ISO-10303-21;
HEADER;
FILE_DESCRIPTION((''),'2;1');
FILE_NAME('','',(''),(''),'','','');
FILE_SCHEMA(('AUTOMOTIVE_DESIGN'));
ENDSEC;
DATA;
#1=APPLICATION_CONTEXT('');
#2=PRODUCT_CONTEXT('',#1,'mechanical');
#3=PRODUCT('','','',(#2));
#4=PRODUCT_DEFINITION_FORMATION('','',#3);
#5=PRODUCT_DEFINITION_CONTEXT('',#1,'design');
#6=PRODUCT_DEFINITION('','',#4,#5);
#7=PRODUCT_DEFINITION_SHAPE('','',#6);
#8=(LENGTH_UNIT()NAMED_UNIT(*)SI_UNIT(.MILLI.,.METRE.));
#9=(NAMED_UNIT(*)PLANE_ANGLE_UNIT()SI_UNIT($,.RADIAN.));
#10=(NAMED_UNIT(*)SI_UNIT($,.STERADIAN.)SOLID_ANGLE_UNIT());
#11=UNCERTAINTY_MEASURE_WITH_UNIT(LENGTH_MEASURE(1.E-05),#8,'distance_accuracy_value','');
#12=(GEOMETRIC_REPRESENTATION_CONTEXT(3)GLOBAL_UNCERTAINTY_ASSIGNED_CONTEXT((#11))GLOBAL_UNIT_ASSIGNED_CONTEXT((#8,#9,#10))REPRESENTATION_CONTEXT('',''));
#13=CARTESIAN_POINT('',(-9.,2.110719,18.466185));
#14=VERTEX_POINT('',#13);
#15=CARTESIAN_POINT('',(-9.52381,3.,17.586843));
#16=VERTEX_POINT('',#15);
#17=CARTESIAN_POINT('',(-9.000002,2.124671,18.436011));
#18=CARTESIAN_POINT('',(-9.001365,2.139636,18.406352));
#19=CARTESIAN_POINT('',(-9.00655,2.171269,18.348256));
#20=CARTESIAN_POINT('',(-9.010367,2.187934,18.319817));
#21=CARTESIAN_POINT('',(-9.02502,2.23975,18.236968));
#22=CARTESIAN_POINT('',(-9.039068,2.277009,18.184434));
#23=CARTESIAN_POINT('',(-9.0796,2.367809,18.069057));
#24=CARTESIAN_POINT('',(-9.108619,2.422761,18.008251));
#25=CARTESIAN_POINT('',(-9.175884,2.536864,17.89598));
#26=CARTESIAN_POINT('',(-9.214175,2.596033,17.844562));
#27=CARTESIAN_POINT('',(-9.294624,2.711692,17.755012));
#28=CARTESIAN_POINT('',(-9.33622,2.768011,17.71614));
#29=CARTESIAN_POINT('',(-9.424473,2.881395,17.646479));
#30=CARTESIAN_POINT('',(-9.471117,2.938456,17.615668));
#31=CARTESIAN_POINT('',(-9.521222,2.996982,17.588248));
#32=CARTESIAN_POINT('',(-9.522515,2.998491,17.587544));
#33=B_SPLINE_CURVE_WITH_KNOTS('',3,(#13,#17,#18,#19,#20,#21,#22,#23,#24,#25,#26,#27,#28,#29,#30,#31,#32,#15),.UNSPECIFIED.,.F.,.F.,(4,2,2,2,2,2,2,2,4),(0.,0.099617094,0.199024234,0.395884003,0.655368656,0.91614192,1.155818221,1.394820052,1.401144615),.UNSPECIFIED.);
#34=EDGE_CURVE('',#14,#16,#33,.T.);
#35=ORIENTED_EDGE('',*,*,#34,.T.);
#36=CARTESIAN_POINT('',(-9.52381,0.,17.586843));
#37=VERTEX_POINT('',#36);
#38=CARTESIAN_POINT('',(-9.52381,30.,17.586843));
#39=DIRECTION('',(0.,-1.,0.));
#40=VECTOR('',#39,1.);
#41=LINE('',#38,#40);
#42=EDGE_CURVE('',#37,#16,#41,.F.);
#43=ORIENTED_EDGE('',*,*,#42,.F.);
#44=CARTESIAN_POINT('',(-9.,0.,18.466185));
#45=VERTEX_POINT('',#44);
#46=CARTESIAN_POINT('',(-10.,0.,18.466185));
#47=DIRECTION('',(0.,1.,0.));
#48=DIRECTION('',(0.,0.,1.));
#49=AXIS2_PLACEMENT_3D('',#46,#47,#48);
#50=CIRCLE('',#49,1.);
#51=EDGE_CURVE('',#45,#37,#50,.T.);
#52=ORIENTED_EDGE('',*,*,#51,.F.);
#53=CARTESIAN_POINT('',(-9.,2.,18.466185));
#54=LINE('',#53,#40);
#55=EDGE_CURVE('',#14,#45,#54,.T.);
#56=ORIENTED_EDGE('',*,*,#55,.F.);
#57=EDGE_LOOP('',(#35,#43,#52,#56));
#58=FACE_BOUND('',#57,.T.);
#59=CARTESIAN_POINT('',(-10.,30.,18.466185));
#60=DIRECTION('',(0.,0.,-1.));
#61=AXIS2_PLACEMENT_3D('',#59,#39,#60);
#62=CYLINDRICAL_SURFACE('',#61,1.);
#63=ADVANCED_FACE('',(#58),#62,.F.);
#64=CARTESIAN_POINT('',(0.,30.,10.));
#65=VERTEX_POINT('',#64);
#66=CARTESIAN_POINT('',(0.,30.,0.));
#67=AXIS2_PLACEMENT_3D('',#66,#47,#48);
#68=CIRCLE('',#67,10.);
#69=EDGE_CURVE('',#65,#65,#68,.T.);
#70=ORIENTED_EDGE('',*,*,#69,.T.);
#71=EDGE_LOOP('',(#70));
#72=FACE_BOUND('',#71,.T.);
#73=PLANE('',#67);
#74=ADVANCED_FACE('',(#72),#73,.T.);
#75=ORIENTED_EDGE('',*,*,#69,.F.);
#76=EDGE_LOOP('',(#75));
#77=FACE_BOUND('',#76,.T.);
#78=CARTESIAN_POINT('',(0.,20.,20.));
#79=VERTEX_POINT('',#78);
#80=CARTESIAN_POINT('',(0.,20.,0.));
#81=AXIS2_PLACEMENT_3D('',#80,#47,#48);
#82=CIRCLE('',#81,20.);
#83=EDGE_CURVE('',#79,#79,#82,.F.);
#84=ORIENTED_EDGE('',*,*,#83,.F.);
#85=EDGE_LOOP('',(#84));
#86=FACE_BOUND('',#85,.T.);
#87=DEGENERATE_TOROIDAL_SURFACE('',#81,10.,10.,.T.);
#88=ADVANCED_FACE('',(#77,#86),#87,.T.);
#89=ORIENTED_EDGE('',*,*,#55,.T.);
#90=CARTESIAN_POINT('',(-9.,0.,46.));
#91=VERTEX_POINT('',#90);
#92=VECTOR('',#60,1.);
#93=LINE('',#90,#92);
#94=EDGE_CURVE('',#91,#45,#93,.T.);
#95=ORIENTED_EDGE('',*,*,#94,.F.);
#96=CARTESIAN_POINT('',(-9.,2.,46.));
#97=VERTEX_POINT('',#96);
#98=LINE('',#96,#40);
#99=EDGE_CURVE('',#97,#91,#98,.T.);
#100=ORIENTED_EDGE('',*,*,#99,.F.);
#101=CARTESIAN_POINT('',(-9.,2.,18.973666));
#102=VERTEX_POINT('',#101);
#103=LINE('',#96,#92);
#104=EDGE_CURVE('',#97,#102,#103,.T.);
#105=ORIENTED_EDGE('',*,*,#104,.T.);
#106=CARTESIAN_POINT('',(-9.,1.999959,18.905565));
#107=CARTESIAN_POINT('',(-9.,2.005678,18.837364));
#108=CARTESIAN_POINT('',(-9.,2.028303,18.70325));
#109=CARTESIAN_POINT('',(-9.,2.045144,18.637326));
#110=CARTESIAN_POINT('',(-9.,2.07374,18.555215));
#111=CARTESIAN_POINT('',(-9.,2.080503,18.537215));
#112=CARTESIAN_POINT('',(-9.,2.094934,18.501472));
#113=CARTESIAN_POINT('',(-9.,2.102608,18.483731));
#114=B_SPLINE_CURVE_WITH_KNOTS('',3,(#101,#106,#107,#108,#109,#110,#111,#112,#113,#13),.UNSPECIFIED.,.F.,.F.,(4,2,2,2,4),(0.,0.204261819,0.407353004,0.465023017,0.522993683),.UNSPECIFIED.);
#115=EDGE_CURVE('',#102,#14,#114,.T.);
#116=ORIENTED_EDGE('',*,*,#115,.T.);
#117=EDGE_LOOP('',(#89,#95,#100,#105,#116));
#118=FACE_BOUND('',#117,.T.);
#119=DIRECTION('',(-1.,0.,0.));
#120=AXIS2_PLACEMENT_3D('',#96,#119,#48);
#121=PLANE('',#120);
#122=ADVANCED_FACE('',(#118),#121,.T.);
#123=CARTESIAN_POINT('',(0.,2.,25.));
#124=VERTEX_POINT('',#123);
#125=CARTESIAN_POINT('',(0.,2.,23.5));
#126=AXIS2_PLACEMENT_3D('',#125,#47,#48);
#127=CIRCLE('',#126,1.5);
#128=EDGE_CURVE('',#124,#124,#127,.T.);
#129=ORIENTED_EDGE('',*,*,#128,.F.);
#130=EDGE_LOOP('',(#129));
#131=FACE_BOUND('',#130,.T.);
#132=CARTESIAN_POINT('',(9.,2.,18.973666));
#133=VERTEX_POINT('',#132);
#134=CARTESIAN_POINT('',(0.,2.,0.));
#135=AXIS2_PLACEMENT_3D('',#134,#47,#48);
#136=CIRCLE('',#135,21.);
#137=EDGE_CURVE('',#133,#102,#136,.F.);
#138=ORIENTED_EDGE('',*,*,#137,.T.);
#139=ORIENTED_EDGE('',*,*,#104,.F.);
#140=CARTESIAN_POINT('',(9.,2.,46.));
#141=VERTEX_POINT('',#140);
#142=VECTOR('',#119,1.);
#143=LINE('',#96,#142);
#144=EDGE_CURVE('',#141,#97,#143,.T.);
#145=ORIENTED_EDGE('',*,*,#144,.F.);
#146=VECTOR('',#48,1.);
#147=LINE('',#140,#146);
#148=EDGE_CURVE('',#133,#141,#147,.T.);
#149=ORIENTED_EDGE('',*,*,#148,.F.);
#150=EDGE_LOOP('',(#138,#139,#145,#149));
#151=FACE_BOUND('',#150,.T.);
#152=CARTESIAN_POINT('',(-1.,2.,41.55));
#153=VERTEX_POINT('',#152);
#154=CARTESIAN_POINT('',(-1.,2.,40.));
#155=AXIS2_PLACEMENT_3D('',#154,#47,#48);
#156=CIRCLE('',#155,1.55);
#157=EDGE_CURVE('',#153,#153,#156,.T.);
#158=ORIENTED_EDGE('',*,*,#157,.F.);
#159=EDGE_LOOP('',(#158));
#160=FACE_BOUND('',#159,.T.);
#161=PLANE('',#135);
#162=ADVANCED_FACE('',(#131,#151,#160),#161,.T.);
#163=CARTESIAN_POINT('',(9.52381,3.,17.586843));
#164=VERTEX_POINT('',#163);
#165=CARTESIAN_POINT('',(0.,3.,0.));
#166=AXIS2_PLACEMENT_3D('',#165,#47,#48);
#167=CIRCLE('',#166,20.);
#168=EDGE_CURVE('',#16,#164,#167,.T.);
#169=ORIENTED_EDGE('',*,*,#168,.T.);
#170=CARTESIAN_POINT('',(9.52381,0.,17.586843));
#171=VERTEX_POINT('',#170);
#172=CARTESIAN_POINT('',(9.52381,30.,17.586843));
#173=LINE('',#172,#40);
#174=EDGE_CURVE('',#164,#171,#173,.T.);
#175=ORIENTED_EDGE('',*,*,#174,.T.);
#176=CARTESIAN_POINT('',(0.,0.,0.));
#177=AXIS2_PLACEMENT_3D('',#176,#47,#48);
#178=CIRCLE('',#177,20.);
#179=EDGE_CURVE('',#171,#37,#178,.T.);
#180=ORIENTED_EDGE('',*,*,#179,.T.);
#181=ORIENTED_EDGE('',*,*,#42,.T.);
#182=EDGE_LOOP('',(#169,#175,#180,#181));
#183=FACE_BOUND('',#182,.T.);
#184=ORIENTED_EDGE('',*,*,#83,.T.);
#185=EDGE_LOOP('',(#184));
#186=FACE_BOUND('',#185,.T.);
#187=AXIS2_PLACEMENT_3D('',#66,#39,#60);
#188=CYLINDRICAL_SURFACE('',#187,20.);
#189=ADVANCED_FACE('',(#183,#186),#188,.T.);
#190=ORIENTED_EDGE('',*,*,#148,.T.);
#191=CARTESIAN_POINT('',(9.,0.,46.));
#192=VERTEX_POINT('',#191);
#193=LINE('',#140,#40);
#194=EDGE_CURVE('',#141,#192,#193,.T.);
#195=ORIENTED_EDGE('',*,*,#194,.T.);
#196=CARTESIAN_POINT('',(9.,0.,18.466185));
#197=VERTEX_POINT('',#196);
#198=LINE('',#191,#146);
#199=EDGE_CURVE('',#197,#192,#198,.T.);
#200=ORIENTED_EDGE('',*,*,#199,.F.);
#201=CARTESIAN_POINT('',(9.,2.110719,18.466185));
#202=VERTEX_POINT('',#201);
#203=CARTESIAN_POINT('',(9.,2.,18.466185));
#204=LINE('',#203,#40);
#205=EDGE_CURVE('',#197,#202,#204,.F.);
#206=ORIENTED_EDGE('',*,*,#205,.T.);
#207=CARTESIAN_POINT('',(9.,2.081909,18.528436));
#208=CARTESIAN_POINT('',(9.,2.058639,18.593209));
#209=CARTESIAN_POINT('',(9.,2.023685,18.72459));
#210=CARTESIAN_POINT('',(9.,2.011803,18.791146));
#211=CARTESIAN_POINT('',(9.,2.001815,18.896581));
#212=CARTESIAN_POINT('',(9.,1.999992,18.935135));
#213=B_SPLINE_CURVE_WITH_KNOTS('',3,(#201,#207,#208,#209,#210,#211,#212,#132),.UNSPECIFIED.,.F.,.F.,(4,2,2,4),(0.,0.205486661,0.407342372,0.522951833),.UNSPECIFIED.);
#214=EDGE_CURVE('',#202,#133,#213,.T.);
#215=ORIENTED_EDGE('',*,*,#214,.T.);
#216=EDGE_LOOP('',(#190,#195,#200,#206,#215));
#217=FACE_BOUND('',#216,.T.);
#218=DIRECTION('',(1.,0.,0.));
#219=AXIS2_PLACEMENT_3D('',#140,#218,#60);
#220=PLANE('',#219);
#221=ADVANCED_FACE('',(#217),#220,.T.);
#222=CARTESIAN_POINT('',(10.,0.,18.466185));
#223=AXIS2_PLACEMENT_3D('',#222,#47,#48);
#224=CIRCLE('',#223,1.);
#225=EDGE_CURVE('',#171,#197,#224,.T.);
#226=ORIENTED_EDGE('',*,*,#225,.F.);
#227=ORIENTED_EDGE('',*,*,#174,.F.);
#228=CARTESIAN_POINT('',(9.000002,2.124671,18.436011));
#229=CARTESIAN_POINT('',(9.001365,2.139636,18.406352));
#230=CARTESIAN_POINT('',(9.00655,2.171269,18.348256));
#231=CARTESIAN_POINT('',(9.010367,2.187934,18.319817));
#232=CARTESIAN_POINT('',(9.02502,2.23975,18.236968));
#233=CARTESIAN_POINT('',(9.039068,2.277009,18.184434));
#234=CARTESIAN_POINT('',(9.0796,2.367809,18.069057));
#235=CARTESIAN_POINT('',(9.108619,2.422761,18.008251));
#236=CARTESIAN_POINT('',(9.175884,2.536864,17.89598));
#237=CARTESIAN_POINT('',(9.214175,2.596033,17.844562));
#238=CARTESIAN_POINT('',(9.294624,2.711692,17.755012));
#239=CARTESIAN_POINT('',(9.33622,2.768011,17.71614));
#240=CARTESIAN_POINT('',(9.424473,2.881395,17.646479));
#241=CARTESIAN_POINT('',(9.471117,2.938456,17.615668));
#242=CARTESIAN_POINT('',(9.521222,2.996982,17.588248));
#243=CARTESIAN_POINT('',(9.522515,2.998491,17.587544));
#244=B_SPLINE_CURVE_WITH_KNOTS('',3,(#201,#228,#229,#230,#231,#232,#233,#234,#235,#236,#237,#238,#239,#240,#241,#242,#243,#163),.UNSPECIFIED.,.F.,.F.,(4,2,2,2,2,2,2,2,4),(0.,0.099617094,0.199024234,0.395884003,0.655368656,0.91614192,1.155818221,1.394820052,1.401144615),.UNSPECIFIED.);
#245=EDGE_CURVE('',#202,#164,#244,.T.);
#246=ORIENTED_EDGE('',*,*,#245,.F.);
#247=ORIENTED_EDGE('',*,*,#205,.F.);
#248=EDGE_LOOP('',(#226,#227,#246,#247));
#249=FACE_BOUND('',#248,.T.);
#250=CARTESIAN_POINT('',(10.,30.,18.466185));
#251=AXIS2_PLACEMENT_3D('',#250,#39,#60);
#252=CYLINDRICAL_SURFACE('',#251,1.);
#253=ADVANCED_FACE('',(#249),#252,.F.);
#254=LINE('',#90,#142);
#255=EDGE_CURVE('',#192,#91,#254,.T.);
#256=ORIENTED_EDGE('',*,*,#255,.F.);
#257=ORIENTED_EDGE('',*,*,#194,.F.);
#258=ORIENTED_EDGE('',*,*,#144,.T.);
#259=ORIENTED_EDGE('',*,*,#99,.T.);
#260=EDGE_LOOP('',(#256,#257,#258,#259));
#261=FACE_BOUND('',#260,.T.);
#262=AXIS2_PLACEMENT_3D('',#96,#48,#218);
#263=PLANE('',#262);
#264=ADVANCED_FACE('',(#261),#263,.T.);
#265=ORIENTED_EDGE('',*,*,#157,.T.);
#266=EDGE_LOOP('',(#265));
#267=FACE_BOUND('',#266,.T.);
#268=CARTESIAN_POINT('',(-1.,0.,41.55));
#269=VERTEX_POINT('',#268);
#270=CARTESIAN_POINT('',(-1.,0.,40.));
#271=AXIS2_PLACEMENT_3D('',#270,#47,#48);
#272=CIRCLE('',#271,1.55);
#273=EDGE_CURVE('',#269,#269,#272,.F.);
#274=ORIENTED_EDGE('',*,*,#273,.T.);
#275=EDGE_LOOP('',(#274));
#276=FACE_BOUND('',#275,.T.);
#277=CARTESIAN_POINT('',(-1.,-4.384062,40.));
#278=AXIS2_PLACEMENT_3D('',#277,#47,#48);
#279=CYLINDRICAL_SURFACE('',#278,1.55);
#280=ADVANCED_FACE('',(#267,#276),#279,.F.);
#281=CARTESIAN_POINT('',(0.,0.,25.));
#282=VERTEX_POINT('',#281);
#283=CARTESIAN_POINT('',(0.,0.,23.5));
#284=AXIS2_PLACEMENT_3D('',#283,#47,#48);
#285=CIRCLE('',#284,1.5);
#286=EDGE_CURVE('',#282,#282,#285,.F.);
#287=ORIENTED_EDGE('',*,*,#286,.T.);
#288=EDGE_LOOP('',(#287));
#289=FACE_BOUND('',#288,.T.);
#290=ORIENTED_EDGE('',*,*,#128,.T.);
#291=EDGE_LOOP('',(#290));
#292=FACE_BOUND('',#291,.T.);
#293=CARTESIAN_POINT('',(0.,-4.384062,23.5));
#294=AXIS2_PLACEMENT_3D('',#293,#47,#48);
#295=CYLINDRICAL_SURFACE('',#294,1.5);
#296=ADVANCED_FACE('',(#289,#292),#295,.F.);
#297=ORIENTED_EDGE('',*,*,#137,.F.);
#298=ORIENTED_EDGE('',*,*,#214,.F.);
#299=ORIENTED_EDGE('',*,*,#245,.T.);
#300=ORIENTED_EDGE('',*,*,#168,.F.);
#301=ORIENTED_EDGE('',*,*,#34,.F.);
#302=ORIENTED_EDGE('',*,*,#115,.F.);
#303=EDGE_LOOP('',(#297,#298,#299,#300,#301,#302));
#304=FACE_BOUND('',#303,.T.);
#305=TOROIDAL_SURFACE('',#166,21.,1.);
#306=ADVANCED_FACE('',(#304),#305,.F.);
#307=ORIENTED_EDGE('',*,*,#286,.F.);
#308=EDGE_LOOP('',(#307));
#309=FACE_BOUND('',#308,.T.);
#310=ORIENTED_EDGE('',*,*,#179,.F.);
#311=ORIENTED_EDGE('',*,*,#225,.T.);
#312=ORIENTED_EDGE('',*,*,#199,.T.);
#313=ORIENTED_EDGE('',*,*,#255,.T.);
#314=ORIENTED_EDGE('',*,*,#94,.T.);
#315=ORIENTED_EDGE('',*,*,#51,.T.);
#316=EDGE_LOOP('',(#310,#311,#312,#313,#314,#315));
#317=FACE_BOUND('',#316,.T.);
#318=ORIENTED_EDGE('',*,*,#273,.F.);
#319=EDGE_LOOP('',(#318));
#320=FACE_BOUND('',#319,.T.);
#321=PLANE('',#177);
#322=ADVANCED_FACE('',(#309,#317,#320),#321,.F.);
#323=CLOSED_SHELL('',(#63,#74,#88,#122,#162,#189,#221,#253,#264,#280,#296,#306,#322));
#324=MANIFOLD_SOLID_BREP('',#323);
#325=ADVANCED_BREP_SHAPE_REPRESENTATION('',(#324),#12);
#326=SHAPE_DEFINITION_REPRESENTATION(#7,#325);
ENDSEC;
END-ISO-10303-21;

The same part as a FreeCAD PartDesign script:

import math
import FreeCAD as App
import Part
import Sketcher

V = App.Vector
Q = App.Units.Quantity


def edges_at(feature, points):
    """Names of the edges that pass closest to the given points."""
    edges = feature.Shape.Edges
    near = lambda p: min(range(len(edges)), key=lambda i: edges[i].distToShape(Part.Vertex(*p))[0])
    return sorted({f"Edge{near(p) + 1}" for p in points})

doc = App.newDocument("Part")
body = doc.addObject("PartDesign::Body", "Body")

# Sketch on XZ plane
sketch1 = body.newObject("Sketcher::SketchObject", "Sketch")
sketch1.AttachmentSupport = (doc.getObject("XZ_Plane"), [""])
sketch1.MapMode = "FlatFace"
sketch1.addGeometry(Part.Circle(V(0, 0, 0), V(0, 0, 1), 20), False)
sketch1.addConstraint([
    Sketcher.Constraint("Coincident", 0, 3, -1, 1),
    Sketcher.Constraint("Diameter", 0, Q("40 mm")),
])
pad1 = body.newObject("PartDesign::Pad", "Pad")
pad1.Profile = sketch1
pad1.Length = 30
pad1.Reversed = True

# Sketch on XZ plane
sketch2 = body.newObject("Sketcher::SketchObject", "Sketch001")
sketch2.AttachmentSupport = (doc.getObject("XZ_Plane"), [""])
sketch2.MapMode = "FlatFace"
sketch2.addGeometry([
    Part.LineSegment(V(-9, 46, 0), V(-9, 18, 0)),
    Part.ArcOfCircle(Part.Circle(V(0, 0, 0), V(0, 0, 1), 20), math.radians(63), math.radians(117)),
    Part.LineSegment(V(9, 18, 0), V(9, 46, 0)),
    Part.LineSegment(V(9, 46, 0), V(-9, 46, 0)),
], False)
sketch2.addConstraint([
    Sketcher.Constraint("Coincident", 0, 2, 1, 2),
    Sketcher.Constraint("Coincident", 1, 1, 2, 1),
    Sketcher.Constraint("Coincident", 2, 2, 3, 1),
    Sketcher.Constraint("Coincident", 3, 2, 0, 1),
    Sketcher.Constraint("Vertical", 0),
    Sketcher.Constraint("Vertical", 2),
    Sketcher.Constraint("Horizontal", 3),
    Sketcher.Constraint("Coincident", 1, 3, -1, 1),
    Sketcher.Constraint("Horizontal", 0, 2, 1, 1),
    Sketcher.Constraint("Radius", 1, Q("20 mm")),
    Sketcher.Constraint("DistanceX", 3, 2, 3, 1, Q("18 mm")),
    Sketcher.Constraint("DistanceY", -1, 1, 2, 2, Q("46 mm")),
])
pad2 = body.newObject("PartDesign::Pad", "Pad001")
pad2.Profile = sketch2
pad2.Length = 2
pad2.Reversed = True

# Sketch on XZ plane
sketch3 = body.newObject("Sketcher::SketchObject", "Sketch002")
sketch3.AttachmentSupport = (doc.getObject("XZ_Plane"), [""])
sketch3.MapMode = "FlatFace"
sketch3.AttachmentOffset = App.Placement(V(0, 0, -2), App.Rotation())
sketch3.addGeometry([
    Part.Circle(V(-1, 40, 0), V(0, 0, 1), 1.6),
    Part.Circle(V(0, 23.5, 0), V(0, 0, 1), 1.5),
], False)
sketch3.addConstraint([
    Sketcher.Constraint("PointOnObject", 1, 3, -2),
    Sketcher.Constraint("Diameter", 1, Q("3 mm")),
    Sketcher.Constraint("Diameter", 0, Q("3.1 mm")),
    Sketcher.Constraint("DistanceX", 0, 3, -1, 1, Q("1 mm")),
    Sketcher.Constraint("DistanceY", -1, 1, 0, 3, Q("40 mm")),
    Sketcher.Constraint("DistanceY", -1, 1, 1, 3, Q("23.5 mm")),
])
pocket1 = body.newObject("PartDesign::Pocket", "Pocket")
pocket1.Profile = sketch3
pocket1.Length = 2
pocket1.Reversed = True
doc.recompute()

fillet = body.newObject("PartDesign::Fillet", "Fillet")
fillet.Base = (pocket1, edges_at(pocket1, [(-9, 1, 17.861), (0, 2, 20), (9, 1, 17.861)]))
fillet.Radius = 1
doc.recompute()

fillet2 = body.newObject("PartDesign::Fillet", "Fillet001")
fillet2.Base = (fillet, edges_at(fillet, [(-20, 30, 0)]))
fillet2.Radius = 10

doc.recompute()
